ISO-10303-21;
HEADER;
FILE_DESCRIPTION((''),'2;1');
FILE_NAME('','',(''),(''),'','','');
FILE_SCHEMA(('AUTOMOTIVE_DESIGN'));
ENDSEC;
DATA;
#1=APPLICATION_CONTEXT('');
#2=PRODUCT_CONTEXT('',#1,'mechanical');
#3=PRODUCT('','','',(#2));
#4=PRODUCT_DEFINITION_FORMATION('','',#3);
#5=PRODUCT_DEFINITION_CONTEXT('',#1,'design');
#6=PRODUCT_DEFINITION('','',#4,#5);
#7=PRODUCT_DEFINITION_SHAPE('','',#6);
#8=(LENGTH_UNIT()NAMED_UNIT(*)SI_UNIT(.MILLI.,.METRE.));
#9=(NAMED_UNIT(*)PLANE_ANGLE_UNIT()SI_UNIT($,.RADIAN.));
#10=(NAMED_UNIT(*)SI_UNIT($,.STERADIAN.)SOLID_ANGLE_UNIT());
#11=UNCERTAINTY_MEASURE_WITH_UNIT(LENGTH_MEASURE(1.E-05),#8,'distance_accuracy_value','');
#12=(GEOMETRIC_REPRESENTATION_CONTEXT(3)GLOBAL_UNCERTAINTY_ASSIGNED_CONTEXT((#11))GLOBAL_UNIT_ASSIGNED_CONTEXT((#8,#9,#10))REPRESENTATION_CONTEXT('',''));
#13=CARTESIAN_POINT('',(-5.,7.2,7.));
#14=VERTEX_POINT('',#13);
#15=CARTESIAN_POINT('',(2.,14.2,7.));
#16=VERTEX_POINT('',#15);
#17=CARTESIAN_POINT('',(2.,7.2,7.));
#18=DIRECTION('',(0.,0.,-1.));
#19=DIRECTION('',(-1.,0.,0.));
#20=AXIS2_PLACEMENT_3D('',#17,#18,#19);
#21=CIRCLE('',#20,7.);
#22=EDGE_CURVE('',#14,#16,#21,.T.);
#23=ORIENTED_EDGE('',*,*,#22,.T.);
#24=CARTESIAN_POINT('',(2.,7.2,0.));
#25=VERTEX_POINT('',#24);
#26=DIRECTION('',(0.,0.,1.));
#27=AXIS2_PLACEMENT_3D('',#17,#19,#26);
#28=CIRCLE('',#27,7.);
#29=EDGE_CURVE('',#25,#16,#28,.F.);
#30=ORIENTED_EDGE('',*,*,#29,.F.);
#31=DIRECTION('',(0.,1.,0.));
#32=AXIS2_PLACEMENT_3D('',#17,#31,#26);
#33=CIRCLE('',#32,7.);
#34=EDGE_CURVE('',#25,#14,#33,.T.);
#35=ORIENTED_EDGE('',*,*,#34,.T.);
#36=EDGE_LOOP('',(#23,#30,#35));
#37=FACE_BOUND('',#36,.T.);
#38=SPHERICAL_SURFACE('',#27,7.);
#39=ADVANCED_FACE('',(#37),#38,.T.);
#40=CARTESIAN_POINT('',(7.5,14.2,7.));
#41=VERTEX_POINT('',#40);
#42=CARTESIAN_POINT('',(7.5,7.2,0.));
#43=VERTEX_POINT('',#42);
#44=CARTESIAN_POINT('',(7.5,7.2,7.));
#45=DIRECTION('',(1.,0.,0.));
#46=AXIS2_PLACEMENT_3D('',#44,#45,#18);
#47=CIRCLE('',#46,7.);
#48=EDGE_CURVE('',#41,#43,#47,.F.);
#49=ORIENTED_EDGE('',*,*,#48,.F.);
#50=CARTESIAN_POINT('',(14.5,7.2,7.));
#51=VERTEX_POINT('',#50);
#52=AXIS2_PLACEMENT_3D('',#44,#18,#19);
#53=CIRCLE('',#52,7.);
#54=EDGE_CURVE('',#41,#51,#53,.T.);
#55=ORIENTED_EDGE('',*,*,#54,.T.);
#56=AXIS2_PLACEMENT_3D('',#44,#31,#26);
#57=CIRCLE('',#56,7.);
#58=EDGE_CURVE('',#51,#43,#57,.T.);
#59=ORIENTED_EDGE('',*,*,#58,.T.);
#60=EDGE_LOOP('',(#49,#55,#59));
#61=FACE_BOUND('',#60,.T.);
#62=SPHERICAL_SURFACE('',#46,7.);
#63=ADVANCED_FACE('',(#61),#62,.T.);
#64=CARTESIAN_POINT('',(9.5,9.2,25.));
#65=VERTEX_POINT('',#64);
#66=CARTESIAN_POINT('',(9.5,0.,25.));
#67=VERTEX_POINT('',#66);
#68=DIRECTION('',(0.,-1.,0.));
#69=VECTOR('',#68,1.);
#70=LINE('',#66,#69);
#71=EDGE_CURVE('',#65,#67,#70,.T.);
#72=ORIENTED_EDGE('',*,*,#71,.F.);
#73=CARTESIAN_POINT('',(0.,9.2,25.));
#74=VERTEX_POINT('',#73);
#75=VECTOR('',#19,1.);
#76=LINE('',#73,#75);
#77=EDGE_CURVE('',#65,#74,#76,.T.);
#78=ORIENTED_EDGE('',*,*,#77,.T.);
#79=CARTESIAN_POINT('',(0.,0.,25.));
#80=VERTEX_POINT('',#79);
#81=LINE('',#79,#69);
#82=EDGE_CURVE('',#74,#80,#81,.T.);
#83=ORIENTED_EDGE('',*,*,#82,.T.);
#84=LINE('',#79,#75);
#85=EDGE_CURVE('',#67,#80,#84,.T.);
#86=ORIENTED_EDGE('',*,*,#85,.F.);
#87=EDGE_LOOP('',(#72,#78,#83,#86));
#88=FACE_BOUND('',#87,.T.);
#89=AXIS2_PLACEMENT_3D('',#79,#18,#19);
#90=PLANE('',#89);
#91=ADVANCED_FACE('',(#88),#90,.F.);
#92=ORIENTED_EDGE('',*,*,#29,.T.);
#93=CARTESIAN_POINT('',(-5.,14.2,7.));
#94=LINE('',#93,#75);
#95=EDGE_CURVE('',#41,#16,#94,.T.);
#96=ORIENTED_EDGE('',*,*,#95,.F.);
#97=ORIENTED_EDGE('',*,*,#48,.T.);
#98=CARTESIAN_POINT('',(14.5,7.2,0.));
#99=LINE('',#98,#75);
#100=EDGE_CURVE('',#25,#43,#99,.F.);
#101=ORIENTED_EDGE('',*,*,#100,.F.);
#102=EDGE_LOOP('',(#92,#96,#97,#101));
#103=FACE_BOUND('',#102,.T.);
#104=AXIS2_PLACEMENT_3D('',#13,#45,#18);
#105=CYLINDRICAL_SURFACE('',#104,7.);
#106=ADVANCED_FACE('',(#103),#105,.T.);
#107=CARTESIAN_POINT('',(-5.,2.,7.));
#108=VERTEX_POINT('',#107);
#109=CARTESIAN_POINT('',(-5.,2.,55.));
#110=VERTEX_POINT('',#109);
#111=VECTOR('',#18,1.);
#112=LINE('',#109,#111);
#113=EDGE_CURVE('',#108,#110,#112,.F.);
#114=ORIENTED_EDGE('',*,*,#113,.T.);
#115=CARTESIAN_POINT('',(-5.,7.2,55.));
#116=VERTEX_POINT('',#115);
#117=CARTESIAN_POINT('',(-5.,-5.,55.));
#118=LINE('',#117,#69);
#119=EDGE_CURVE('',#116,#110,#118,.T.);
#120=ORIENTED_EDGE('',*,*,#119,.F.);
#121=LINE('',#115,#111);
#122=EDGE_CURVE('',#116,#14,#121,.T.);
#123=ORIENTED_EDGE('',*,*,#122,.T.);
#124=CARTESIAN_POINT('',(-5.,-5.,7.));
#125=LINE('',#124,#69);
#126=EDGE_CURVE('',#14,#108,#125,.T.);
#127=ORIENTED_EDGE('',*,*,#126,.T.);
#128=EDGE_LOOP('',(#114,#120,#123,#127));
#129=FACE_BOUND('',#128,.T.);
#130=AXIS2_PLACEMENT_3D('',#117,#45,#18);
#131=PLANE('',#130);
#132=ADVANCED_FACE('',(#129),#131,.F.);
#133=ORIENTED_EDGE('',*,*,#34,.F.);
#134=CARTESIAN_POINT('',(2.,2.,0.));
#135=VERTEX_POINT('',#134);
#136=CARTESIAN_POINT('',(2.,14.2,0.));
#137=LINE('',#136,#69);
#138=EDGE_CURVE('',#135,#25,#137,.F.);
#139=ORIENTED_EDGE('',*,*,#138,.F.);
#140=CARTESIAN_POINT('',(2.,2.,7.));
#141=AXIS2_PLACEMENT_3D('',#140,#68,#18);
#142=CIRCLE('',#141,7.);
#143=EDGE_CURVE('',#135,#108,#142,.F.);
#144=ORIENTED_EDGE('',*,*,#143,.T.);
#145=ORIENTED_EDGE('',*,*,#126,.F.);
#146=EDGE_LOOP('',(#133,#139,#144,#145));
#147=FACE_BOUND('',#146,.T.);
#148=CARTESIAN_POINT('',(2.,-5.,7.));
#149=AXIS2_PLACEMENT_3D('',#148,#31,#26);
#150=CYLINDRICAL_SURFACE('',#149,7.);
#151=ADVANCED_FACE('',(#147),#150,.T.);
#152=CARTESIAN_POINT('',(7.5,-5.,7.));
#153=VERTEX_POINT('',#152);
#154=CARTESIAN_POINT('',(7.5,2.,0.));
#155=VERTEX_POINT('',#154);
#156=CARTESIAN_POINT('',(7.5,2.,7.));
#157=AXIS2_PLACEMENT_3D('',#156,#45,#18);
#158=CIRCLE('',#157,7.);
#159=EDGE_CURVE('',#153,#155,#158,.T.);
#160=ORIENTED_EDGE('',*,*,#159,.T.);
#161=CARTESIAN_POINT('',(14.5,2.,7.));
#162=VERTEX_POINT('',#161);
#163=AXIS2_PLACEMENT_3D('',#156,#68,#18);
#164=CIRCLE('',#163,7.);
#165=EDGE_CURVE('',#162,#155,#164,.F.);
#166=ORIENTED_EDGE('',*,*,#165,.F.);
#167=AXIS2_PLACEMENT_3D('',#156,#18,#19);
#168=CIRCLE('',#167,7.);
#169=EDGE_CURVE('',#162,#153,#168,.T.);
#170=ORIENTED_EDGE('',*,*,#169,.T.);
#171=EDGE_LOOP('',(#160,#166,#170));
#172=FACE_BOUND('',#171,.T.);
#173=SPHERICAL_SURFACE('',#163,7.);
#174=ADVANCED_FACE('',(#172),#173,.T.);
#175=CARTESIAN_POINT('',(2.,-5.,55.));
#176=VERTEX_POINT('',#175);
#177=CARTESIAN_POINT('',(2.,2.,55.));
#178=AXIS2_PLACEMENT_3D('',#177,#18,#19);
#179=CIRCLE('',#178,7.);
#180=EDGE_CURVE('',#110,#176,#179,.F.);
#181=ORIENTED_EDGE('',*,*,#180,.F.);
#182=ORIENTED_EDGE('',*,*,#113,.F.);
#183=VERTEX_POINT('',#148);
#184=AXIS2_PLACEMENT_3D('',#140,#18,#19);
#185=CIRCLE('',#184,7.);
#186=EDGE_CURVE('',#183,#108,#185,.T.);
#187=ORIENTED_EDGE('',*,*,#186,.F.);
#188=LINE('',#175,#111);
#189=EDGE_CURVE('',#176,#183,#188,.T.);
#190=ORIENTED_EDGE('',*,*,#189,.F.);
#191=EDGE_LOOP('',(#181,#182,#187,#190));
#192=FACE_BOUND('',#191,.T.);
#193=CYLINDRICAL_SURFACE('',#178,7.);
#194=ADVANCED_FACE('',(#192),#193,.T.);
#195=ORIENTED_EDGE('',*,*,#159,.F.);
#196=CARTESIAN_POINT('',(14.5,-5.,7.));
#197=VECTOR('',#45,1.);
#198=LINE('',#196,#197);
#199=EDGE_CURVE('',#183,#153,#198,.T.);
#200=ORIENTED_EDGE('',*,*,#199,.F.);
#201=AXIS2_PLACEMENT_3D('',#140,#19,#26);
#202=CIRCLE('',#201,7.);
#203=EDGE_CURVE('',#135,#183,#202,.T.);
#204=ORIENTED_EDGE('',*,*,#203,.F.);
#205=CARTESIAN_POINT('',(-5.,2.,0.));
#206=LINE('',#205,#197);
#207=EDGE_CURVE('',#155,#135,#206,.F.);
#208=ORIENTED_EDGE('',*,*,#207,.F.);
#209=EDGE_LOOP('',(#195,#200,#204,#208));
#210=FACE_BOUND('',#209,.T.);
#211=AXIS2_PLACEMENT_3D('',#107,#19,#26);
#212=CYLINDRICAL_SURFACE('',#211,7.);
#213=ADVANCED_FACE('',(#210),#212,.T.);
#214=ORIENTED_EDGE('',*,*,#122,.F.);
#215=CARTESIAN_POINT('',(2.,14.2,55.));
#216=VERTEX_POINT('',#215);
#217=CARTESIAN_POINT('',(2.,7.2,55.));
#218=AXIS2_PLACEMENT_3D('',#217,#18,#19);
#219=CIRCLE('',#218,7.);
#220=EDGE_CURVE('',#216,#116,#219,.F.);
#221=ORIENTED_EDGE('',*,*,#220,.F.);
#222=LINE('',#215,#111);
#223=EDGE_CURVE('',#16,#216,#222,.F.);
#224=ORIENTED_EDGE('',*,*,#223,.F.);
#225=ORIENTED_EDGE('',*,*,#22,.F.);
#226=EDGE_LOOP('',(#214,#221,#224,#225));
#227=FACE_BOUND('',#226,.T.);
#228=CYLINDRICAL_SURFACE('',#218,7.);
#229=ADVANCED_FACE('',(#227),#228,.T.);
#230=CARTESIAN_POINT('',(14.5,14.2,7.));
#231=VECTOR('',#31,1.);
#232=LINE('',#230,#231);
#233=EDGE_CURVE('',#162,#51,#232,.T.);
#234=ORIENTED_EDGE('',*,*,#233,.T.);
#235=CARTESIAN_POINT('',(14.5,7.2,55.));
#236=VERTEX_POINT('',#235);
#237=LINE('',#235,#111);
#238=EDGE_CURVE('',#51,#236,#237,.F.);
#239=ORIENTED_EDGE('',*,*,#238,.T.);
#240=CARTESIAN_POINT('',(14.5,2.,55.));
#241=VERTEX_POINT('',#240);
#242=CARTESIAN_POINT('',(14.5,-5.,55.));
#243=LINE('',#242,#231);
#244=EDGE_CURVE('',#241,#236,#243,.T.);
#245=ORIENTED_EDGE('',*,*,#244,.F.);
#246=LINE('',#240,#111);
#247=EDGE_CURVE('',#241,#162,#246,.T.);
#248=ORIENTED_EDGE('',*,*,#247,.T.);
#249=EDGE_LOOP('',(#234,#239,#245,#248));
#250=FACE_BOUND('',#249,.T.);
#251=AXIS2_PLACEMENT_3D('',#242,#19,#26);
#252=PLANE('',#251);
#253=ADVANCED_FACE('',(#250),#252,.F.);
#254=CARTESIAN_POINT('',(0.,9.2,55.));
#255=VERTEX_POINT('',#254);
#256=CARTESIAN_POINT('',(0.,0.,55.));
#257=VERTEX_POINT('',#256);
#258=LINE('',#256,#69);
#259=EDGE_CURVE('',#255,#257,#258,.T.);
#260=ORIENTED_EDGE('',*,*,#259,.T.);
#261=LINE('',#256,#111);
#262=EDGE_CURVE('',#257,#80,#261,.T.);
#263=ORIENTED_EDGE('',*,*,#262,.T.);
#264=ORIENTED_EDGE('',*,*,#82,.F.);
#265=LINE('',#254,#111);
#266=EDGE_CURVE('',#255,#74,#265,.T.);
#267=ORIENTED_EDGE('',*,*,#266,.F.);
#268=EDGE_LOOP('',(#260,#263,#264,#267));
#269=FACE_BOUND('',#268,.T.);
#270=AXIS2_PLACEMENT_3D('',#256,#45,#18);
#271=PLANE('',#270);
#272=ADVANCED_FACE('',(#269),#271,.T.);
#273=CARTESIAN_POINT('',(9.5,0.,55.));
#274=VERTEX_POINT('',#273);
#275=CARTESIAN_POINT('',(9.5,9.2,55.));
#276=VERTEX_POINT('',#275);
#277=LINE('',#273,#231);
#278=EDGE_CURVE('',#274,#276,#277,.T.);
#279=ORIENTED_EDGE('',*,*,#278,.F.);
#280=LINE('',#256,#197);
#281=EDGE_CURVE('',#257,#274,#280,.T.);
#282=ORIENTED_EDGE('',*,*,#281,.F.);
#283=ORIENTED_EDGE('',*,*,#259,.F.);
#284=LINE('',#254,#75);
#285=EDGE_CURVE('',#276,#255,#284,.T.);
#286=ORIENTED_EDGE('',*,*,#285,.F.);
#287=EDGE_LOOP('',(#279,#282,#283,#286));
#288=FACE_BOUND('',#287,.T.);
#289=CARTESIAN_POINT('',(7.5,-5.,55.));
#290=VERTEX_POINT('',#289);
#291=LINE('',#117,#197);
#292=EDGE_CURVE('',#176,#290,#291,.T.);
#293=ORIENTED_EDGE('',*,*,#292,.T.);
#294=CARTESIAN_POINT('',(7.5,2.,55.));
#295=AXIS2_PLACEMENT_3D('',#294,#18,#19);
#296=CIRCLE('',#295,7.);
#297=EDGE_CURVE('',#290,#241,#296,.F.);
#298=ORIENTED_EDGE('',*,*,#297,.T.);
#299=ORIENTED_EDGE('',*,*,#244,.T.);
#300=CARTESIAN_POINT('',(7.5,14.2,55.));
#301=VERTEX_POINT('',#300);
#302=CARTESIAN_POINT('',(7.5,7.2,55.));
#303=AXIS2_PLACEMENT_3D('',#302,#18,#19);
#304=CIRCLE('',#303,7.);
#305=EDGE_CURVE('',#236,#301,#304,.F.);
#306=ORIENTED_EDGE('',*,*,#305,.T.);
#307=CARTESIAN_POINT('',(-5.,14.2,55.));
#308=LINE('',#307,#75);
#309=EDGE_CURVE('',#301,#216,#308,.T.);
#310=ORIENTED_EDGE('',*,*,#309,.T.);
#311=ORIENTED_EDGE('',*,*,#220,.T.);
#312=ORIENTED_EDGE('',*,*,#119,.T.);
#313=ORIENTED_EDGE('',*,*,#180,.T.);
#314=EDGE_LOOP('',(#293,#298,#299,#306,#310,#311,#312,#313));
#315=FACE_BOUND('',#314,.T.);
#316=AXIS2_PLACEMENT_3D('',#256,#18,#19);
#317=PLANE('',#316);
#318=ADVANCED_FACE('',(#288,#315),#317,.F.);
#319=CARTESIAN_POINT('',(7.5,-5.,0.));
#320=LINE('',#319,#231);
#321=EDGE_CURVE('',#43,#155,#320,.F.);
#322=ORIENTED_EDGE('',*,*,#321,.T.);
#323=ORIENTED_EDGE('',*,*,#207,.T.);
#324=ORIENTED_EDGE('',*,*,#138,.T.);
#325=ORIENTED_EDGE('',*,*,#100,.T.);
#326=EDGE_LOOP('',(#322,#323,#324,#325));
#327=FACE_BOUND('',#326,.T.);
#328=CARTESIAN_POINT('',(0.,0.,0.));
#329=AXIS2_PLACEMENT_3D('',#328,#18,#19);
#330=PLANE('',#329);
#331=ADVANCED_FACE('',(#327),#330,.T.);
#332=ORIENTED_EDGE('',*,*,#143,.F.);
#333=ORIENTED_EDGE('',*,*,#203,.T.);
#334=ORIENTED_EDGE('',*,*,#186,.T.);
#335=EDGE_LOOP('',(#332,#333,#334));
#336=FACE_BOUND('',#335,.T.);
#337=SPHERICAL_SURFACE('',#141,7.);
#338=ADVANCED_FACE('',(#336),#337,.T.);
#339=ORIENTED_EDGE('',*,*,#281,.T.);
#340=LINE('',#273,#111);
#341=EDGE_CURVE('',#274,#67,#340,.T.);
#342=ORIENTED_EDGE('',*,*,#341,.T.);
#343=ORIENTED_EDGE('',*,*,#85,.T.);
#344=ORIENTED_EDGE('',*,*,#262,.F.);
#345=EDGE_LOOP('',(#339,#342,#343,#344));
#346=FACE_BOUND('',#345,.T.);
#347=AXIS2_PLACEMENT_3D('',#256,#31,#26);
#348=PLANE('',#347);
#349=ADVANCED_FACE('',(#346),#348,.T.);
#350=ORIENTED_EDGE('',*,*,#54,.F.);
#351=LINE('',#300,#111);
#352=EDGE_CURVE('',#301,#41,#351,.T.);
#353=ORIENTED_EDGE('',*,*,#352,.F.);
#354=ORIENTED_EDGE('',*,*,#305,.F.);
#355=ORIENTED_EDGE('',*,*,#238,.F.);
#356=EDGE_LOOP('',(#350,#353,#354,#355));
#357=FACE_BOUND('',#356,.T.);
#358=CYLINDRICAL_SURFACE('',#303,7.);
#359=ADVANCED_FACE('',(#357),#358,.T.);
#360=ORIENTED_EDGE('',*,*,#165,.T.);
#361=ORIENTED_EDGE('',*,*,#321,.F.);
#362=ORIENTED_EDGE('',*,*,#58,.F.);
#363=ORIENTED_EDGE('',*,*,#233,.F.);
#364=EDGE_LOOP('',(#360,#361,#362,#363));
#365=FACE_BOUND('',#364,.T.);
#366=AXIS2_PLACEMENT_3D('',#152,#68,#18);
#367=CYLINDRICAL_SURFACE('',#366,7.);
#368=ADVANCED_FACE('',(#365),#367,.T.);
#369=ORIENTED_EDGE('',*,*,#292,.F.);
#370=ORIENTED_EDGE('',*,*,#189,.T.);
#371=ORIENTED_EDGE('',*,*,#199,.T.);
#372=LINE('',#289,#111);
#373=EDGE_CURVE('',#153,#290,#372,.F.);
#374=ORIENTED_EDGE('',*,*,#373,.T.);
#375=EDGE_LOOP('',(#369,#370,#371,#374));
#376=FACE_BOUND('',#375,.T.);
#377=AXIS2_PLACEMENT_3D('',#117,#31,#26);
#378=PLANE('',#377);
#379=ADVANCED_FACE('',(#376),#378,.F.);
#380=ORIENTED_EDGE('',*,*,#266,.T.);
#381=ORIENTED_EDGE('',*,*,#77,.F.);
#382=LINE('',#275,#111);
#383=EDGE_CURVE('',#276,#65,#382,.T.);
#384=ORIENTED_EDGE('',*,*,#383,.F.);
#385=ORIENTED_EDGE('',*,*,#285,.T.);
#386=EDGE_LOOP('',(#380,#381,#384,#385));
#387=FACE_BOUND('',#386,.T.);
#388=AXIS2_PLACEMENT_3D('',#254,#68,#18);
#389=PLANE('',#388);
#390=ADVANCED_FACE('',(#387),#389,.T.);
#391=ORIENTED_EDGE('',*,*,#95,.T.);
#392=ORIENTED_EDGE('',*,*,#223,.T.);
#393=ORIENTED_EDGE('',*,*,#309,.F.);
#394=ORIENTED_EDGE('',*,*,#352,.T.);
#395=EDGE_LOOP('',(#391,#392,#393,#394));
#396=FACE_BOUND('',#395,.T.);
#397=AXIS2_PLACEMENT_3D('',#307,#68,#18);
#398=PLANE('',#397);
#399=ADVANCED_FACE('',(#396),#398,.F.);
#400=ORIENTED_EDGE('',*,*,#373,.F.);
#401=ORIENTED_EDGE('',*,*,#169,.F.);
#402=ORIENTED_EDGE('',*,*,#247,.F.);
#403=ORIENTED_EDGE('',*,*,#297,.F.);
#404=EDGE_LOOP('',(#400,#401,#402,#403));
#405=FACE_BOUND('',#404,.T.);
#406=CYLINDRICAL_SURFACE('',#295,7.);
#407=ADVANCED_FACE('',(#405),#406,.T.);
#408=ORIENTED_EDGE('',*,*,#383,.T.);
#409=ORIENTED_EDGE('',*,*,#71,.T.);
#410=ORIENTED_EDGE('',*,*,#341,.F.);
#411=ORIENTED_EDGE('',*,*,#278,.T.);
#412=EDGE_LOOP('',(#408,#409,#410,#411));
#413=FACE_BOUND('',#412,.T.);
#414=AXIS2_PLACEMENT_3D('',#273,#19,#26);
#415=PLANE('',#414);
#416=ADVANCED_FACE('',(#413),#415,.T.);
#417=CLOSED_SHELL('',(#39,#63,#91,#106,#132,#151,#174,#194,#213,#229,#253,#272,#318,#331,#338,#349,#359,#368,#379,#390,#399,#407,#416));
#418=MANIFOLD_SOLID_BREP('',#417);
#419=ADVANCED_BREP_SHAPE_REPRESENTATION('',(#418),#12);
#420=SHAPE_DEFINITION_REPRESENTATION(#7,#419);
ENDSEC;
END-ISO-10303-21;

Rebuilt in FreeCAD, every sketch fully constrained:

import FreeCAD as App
import Part
import Sketcher
Q = App.Units.Quantity


def edges_at(feature, points):
    """Names of the edges that pass closest to the given points."""
    edges = feature.Shape.Edges
    near = lambda p: min(range(len(edges)), key=lambda i: edges[i].distToShape(Part.Vertex(*p))[0])
    return sorted({f"Edge{near(p) + 1}" for p in points})

doc = App.newDocument("Part")
body = doc.addObject("PartDesign::Body", "Body")

# Sketch on XY plane
sketch1 = body.newObject("Sketcher::SketchObject", "Sketch")
sketch1.AttachmentSupport = (doc.getObject("XY_Plane"), [""])
sketch1.MapMode = "FlatFace"
sketch1.addGeometry(Part.LineSegment(App.Vector(-5, 14.2, 0), App.Vector(-5, -5, 0)), False)
sketch1.addGeometry(Part.LineSegment(App.Vector(-5, -5, 0), App.Vector(14.5, -5, 0)), False)
sketch1.addGeometry(Part.LineSegment(App.Vector(14.5, -5, 0), App.Vector(14.5, 14.2, 0)), False)
sketch1.addGeometry(Part.LineSegment(App.Vector(14.5, 14.2, 0), App.Vector(-5, 14.2, 0)), False)
sketch1.addGeometry(Part.LineSegment(App.Vector(9.5, 0, 0), App.Vector(0, 0, 0)), False)
sketch1.addGeometry(Part.LineSegment(App.Vector(0, 0, 0), App.Vector(0, 9.2, 0)), False)
sketch1.addGeometry(Part.LineSegment(App.Vector(0, 9.2, 0), App.Vector(9.5, 9.2, 0)), False)
sketch1.addGeometry(Part.LineSegment(App.Vector(9.5, 9.2, 0), App.Vector(9.5, 0, 0)), False)
sketch1.addConstraint(Sketcher.Constraint("Coincident", 0, 2, 1, 1))
sketch1.addConstraint(Sketcher.Constraint("Coincident", 1, 2, 2, 1))
sketch1.addConstraint(Sketcher.Constraint("Coincident", 2, 2, 3, 1))
sketch1.addConstraint(Sketcher.Constraint("Coincident", 3, 2, 0, 1))
sketch1.addConstraint(Sketcher.Constraint("Coincident", 4, 2, 5, 1))
sketch1.addConstraint(Sketcher.Constraint("Coincident", 5, 2, 6, 1))
sketch1.addConstraint(Sketcher.Constraint("Coincident", 6, 2, 7, 1))
sketch1.addConstraint(Sketcher.Constraint("Coincident", 7, 2, 4, 1))
sketch1.addConstraint(Sketcher.Constraint("Vertical", 0))
sketch1.addConstraint(Sketcher.Constraint("Horizontal", 1))
sketch1.addConstraint(Sketcher.Constraint("Vertical", 2))
sketch1.addConstraint(Sketcher.Constraint("Horizontal", 3))
sketch1.addConstraint(Sketcher.Constraint("Horizontal", 4))
sketch1.addConstraint(Sketcher.Constraint("Vertical", 5))
sketch1.addConstraint(Sketcher.Constraint("Horizontal", 6))
sketch1.addConstraint(Sketcher.Constraint("Vertical", 7))
sketch1.addConstraint(Sketcher.Constraint("Coincident", 4, 2, -1, 1))
sketch1.addConstraint(Sketcher.Constraint("DistanceX", 1, 1, 1, 2, Q("19.5 mm")))
sketch1.addConstraint(Sketcher.Constraint("DistanceX", 4, 2, 4, 1, Q("9.5 mm")))
sketch1.addConstraint(Sketcher.Constraint("DistanceY", 0, 2, 0, 1, Q("19.2 mm")))
sketch1.addConstraint(Sketcher.Constraint("DistanceY", 5, 1, 5, 2, Q("9.2 mm")))
sketch1.addConstraint(Sketcher.Constraint("DistanceX", 0, 2, -1, 1, Q("5 mm")))
sketch1.addConstraint(Sketcher.Constraint("DistanceY", 0, 2, -1, 1, Q("5 mm")))
pad1 = body.newObject("PartDesign::Pad", "Pad")
pad1.Profile = sketch1
pad1.Length = 55

# Sketch on XY plane
sketch2 = body.newObject("Sketcher::SketchObject", "Sketch001")
sketch2.AttachmentSupport = (doc.getObject("XY_Plane"), [""])
sketch2.MapMode = "FlatFace"
sketch2.addGeometry(Part.LineSegment(App.Vector(0, 9.2, 0), App.Vector(0, 0, 0)), False)
sketch2.addGeometry(Part.LineSegment(App.Vector(0, 0, 0), App.Vector(9.5, 0, 0)), False)
sketch2.addGeometry(Part.LineSegment(App.Vector(9.5, 0, 0), App.Vector(9.5, 9.2, 0)), False)
sketch2.addGeometry(Part.LineSegment(App.Vector(9.5, 9.2, 0), App.Vector(0, 9.2, 0)), False)
sketch2.addConstraint(Sketcher.Constraint("Coincident", 0, 2, 1, 1))
sketch2.addConstraint(Sketcher.Constraint("Coincident", 1, 2, 2, 1))
sketch2.addConstraint(Sketcher.Constraint("Coincident", 2, 2, 3, 1))
sketch2.addConstraint(Sketcher.Constraint("Coincident", 3, 2, 0, 1))
sketch2.addConstraint(Sketcher.Constraint("Vertical", 0))
sketch2.addConstraint(Sketcher.Constraint("Horizontal", 1))
sketch2.addConstraint(Sketcher.Constraint("Vertical", 2))
sketch2.addConstraint(Sketcher.Constraint("Horizontal", 3))
sketch2.addConstraint(Sketcher.Constraint("Coincident", 0, 2, -1, 1))
sketch2.addConstraint(Sketcher.Constraint("DistanceX", 1, 1, 1, 2, Q("9.5 mm")))
sketch2.addConstraint(Sketcher.Constraint("DistanceY", 0, 2, 0, 1, Q("9.2 mm")))
pad2 = body.newObject("PartDesign::Pad", "Pad001")
pad2.Profile = sketch2
pad2.Length = 25
doc.recompute()

fillet = body.newObject("PartDesign::Fillet", "Fillet")
fillet.Base = (pad2, edges_at(pad2, [
    (4.75, 14.2, 0),
    (14.5, 4.6, 0),
    (4.75, -5, 0),
    (-5, 4.6, 0),
    (-5, 14.2, 27.5),
    (14.5, 14.2, 27.5),
    (14.5, -5, 27.5),
    (-5, -5, 27.5),
]))
fillet.Radius = 7

doc.recompute()
